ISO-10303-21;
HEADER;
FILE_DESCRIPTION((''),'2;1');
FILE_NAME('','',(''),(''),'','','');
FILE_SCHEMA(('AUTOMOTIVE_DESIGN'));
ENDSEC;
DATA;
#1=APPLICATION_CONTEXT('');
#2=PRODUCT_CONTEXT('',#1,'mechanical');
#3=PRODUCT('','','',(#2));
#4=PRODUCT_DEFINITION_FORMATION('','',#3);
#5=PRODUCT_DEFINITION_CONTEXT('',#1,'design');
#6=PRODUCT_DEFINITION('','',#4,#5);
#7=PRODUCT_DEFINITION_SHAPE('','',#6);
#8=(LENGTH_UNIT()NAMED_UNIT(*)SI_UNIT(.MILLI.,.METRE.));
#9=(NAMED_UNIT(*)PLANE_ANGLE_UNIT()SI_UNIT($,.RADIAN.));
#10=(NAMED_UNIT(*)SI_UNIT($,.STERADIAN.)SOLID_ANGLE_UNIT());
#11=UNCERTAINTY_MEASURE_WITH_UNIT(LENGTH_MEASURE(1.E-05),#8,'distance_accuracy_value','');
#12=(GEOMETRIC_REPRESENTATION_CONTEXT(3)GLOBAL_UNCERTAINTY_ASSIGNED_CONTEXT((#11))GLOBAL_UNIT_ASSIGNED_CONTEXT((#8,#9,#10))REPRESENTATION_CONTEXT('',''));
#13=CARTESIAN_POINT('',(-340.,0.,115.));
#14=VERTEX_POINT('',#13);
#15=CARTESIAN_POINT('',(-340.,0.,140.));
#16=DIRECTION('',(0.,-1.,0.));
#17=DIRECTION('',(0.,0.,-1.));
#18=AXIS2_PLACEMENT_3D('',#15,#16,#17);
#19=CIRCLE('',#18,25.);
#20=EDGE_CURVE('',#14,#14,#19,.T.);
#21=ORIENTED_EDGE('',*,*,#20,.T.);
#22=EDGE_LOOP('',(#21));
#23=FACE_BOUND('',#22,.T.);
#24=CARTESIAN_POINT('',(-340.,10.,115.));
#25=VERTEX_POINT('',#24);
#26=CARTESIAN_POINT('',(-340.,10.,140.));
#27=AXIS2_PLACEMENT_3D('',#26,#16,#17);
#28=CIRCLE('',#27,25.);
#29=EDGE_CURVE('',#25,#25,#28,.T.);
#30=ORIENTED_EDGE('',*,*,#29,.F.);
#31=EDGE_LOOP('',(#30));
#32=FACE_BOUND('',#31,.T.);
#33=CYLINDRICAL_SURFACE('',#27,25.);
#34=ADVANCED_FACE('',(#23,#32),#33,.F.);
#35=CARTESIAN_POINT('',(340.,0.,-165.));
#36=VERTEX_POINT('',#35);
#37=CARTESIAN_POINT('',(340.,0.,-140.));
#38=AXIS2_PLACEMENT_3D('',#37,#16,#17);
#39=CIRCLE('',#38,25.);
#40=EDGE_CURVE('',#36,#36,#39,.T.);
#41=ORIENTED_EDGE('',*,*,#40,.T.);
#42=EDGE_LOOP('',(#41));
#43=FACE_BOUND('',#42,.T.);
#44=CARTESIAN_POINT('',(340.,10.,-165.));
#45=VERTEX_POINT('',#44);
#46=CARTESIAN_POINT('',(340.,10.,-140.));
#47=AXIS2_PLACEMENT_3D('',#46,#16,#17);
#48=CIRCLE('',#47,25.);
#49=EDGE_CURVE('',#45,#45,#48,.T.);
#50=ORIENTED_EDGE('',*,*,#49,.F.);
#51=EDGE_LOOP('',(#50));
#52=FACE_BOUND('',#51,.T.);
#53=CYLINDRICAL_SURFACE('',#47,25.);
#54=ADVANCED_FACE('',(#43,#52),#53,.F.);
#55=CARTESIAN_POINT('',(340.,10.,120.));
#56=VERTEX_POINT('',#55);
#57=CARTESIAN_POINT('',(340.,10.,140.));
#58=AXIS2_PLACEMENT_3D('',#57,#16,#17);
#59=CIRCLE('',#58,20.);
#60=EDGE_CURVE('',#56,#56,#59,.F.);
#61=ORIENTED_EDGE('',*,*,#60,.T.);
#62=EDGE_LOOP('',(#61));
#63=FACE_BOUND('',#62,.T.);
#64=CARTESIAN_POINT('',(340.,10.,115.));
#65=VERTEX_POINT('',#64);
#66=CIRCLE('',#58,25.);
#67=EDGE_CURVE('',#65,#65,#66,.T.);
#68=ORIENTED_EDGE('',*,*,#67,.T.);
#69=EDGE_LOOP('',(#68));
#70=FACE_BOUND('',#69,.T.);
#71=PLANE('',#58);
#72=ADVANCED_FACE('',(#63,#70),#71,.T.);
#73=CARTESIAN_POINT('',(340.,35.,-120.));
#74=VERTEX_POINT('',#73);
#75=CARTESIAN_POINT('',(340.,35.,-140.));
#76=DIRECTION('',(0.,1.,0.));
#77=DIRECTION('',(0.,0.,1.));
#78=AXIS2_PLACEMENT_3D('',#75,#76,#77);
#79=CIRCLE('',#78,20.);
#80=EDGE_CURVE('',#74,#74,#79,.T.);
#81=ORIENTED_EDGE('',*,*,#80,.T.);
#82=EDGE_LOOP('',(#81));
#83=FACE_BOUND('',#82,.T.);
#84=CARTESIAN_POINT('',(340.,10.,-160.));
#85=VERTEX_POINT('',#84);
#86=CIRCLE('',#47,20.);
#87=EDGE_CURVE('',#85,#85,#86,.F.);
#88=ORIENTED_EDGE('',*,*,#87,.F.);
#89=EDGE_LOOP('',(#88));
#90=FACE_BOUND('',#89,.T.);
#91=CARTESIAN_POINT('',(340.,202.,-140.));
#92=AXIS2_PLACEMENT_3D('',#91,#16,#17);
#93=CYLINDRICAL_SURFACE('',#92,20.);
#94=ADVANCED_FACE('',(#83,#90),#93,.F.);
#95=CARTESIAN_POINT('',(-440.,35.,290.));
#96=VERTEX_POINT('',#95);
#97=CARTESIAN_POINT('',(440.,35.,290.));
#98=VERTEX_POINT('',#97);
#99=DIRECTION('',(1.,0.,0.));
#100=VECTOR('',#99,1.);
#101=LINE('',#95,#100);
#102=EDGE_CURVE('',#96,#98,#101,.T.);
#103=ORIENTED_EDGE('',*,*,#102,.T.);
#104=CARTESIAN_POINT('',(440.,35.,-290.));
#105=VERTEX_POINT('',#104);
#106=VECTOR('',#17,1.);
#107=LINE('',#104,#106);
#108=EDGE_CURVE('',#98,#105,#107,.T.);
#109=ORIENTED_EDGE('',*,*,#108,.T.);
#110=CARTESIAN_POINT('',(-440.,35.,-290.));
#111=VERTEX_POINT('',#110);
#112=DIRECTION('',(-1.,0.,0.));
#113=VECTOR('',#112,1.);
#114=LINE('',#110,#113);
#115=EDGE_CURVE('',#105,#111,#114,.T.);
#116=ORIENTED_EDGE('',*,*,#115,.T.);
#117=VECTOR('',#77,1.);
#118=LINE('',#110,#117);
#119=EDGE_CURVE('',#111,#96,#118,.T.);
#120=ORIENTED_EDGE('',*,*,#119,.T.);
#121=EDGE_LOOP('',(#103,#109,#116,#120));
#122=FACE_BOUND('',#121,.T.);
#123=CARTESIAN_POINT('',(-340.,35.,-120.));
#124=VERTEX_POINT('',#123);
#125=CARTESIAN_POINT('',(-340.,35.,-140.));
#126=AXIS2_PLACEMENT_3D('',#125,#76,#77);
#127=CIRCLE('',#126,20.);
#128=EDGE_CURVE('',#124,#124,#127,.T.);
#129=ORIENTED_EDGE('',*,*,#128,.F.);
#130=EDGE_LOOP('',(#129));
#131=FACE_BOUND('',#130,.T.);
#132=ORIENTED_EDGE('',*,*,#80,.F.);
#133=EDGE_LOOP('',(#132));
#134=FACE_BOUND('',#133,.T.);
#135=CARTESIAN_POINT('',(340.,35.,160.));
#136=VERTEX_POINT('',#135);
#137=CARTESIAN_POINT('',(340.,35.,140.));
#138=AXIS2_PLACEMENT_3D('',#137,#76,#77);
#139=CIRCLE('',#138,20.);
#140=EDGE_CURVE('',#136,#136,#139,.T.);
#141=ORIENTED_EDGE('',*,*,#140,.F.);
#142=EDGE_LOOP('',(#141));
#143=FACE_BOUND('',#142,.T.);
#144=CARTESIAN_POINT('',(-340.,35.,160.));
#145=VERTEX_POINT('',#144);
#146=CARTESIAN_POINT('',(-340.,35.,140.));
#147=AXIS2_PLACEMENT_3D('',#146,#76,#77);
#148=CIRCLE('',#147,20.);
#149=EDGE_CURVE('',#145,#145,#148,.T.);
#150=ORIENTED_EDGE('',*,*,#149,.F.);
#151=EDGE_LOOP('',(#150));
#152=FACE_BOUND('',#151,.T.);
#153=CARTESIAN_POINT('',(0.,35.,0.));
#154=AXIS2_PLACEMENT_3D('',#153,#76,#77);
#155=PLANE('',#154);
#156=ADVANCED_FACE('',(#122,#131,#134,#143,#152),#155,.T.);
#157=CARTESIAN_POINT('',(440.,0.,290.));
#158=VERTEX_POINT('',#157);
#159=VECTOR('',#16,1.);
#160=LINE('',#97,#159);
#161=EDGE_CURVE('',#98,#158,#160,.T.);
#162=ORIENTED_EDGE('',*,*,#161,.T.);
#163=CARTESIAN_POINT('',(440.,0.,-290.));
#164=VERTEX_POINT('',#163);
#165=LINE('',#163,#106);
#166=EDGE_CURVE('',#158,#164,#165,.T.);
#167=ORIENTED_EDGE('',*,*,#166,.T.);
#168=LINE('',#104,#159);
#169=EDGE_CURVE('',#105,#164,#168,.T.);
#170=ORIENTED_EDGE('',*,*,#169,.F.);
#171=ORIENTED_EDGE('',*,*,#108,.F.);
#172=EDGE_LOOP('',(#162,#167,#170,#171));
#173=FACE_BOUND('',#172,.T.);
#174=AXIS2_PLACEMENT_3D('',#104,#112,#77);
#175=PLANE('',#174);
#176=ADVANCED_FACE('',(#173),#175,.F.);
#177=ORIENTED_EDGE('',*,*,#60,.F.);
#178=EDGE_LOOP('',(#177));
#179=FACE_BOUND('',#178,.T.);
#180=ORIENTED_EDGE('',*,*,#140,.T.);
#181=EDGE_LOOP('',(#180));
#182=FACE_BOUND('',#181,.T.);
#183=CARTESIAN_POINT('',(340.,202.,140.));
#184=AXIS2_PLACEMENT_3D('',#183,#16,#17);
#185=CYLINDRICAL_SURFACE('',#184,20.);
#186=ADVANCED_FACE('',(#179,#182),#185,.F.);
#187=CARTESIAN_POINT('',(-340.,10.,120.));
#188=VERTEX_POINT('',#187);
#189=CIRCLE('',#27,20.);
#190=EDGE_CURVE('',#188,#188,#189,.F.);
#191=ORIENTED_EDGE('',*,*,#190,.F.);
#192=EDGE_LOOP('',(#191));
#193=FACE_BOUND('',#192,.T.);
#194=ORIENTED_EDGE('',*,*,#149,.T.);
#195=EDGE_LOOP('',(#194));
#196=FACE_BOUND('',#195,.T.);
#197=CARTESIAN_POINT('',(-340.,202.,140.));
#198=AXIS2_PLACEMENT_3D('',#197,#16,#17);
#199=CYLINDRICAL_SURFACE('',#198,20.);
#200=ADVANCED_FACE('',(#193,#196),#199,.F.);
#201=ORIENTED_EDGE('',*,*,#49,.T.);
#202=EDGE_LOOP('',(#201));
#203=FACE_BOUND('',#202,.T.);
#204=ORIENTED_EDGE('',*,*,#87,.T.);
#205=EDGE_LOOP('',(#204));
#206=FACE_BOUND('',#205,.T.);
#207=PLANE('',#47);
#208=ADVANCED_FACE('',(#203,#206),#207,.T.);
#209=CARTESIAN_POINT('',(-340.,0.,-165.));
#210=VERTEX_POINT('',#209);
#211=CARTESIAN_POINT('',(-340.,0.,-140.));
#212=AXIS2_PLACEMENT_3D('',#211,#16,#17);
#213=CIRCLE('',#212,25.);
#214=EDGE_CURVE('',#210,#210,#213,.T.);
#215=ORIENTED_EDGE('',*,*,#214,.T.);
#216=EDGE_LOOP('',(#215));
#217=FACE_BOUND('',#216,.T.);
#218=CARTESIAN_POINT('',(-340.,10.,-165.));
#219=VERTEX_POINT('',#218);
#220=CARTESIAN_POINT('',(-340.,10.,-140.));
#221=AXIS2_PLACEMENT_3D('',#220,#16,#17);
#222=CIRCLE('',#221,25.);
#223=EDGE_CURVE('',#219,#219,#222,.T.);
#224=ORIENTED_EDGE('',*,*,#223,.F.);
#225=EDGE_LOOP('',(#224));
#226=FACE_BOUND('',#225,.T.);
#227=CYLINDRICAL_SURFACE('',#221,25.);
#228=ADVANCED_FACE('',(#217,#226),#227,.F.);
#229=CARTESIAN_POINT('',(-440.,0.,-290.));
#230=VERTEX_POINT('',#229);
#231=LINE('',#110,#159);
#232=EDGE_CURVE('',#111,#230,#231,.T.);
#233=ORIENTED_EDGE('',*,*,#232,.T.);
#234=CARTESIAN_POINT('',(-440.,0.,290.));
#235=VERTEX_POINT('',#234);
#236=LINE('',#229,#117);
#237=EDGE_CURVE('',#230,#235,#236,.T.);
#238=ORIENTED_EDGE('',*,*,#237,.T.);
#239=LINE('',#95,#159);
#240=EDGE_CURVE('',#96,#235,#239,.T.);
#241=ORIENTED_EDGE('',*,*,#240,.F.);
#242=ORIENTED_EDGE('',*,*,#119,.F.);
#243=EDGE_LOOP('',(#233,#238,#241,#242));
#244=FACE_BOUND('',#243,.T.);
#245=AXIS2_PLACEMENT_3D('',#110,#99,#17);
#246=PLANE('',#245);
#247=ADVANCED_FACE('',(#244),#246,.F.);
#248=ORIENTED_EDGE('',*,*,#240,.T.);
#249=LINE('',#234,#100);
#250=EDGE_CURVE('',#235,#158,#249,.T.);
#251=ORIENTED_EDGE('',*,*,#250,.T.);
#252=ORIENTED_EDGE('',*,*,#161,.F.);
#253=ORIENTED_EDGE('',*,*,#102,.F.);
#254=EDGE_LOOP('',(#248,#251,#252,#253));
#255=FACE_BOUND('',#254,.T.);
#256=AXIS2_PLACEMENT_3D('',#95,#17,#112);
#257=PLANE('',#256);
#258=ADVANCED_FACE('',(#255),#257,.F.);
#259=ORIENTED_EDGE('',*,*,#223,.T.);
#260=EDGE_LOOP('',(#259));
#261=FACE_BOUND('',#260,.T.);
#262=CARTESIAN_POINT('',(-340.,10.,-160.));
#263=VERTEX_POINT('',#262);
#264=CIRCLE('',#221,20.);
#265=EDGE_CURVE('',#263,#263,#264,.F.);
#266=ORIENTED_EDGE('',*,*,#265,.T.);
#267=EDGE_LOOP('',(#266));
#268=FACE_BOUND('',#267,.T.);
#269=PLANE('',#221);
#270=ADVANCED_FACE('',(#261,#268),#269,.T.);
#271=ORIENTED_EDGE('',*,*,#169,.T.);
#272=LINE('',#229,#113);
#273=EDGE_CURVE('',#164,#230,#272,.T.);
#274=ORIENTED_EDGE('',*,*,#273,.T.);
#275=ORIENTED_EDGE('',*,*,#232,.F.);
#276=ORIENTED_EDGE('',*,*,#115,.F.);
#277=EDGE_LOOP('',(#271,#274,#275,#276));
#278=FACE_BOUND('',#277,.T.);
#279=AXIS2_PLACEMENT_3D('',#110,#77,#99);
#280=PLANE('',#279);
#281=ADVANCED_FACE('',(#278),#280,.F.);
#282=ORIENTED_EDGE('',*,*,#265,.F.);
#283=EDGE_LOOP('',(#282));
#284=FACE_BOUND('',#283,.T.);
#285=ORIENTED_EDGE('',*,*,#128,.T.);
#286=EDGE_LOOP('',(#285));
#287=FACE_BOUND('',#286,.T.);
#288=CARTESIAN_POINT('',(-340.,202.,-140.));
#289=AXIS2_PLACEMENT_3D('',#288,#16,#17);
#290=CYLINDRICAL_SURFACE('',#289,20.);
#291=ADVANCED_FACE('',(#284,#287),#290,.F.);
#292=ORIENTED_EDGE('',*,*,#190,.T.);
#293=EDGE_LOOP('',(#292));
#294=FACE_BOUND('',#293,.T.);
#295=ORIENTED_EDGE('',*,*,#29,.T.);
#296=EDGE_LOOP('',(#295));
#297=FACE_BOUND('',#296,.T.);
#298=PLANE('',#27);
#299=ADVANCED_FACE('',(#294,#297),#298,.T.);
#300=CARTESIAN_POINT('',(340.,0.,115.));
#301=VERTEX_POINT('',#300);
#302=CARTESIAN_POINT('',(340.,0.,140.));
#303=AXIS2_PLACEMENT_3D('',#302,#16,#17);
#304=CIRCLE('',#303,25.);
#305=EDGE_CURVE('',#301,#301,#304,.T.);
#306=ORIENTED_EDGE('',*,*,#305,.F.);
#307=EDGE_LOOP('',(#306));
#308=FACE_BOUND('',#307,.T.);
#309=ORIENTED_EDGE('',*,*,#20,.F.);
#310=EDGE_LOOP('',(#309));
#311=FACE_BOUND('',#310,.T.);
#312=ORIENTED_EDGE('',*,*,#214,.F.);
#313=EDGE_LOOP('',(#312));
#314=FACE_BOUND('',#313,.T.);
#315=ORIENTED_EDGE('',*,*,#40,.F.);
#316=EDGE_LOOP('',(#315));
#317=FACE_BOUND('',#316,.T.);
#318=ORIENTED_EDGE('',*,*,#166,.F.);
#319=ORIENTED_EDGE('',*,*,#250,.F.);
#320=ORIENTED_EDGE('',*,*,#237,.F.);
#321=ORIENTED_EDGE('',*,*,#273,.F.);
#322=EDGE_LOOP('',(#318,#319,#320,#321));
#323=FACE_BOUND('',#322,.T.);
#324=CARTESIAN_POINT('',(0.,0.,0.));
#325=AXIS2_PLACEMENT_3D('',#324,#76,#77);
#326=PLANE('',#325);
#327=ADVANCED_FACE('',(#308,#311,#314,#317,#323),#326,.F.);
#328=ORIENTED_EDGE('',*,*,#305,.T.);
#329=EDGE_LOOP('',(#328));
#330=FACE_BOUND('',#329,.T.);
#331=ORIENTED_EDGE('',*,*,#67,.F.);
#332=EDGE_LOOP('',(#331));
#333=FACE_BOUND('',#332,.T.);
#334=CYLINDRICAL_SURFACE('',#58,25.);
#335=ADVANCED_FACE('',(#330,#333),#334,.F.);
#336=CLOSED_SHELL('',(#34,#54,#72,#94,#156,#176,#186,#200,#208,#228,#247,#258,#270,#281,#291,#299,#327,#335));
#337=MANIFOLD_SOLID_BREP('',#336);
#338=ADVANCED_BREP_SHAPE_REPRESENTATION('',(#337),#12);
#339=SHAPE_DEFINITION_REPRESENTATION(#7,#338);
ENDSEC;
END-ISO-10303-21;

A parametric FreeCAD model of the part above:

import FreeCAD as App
import Part
import Sketcher

V = App.Vector
Q = App.Units.Quantity

doc = App.newDocument("Part")
body = doc.addObject("PartDesign::Body", "Body")

sketch1 = body.newObject("Sketcher::SketchObject", "Sketch")
sketch1.AttachmentSupport = (doc.getObject("XZ_Plane"), [""])
sketch1.MapMode = "FlatFace"
sketch1.addGeometry([
    Part.LineSegment(V(-440, -290, 0), V(-440, 290, 0)),
    Part.LineSegment(V(-440, 290, 0), V(440, 290, 0)),
    Part.LineSegment(V(440, 290, 0), V(440, -290, 0)),
    Part.LineSegment(V(440, -290, 0), V(-440, -290, 0)),
], False)
sketch1.addConstraint([
    Sketcher.Constraint("Coincident", 0, 2, 1, 1),
    Sketcher.Constraint("Coincident", 1, 2, 2, 1),
    Sketcher.Constraint("Coincident", 2, 2, 3, 1),
    Sketcher.Constraint("Coincident", 3, 2, 0, 1),
    Sketcher.Constraint("Vertical", 0),
    Sketcher.Constraint("Horizontal", 1),
    Sketcher.Constraint("Vertical", 2),
    Sketcher.Constraint("Horizontal", 3),
    Sketcher.Constraint("Symmetric", 0, 2, 2, 2, -1, 1),
    Sketcher.Constraint("DistanceX", 1, 1, 1, 2, Q("880 mm")),
    Sketcher.Constraint("DistanceY", 0, 1, 0, 2, Q("580 mm")),
])
pad1 = body.newObject("PartDesign::Pad", "Pad")
pad1.Profile = sketch1
pad1.Length = 35
pad1.Reversed = True

sketch2 = body.newObject("Sketcher::SketchObject", "Sketch001")
sketch2.AttachmentSupport = (doc.getObject("XZ_Plane"), [""])
sketch2.MapMode = "FlatFace"
sketch2.addGeometry([
    Part.Circle(V(-340, 140, 0), V(0, 0, 1), 20),
    Part.Circle(V(340, 140, 0), V(0, 0, 1), 20),
    Part.Circle(V(340, -140, 0), V(0, 0, 1), 20),
    Part.Circle(V(-340, -140, 0), V(0, 0, 1), 20),
], False)
sketch2.addConstraint([
    Sketcher.Constraint("Equal", 0, 1),
    Sketcher.Constraint("Equal", 1, 2),
    Sketcher.Constraint("Equal", 2, 3),
    Sketcher.Constraint("Symmetric", 0, 3, 2, 3, -1, 1),
    Sketcher.Constraint("Symmetric", 1, 3, 3, 3, -1, 1),
    Sketcher.Constraint("Symmetric", 0, 3, 1, 3, -2),
    Sketcher.Constraint("Diameter", 0, Q("40 mm")),
    Sketcher.Constraint("DistanceX", 0, 3, -1, 1, Q("340 mm")),
    Sketcher.Constraint("DistanceY", -1, 1, 0, 3, Q("140 mm")),
])
pocket1 = body.newObject("PartDesign::Pocket", "Pocket")
pocket1.Profile = sketch2
pocket1.Length = 202

sketch3 = body.newObject("Sketcher::SketchObject", "Sketch002")
sketch3.AttachmentSupport = (doc.getObject("XZ_Plane"), [""])
sketch3.MapMode = "FlatFace"
sketch3.addGeometry([
    Part.Circle(V(-340, 140, 0), V(0, 0, 1), 25),
    Part.Circle(V(340, 140, 0), V(0, 0, 1), 25),
    Part.Circle(V(340, -140, 0), V(0, 0, 1), 25),
    Part.Circle(V(-340, -140, 0), V(0, 0, 1), 25),
], False)
sketch3.addConstraint([
    Sketcher.Constraint("Equal", 0, 1),
    Sketcher.Constraint("Equal", 1, 2),
    Sketcher.Constraint("Equal", 2, 3),
    Sketcher.Constraint("Symmetric", 0, 3, 2, 3, -1, 1),
    Sketcher.Constraint("Symmetric", 1, 3, 3, 3, -1, 1),
    Sketcher.Constraint("Symmetric", 0, 3, 1, 3, -2),
    Sketcher.Constraint("Diameter", 0, Q("50 mm")),
    Sketcher.Constraint("DistanceX", 0, 3, -1, 1, Q("340 mm")),
    Sketcher.Constraint("DistanceY", -1, 1, 0, 3, Q("140 mm")),
])
pocket2 = body.newObject("PartDesign::Pocket", "Pocket001")
pocket2.Profile = sketch3
pocket2.Length = 10

doc.recompute()
